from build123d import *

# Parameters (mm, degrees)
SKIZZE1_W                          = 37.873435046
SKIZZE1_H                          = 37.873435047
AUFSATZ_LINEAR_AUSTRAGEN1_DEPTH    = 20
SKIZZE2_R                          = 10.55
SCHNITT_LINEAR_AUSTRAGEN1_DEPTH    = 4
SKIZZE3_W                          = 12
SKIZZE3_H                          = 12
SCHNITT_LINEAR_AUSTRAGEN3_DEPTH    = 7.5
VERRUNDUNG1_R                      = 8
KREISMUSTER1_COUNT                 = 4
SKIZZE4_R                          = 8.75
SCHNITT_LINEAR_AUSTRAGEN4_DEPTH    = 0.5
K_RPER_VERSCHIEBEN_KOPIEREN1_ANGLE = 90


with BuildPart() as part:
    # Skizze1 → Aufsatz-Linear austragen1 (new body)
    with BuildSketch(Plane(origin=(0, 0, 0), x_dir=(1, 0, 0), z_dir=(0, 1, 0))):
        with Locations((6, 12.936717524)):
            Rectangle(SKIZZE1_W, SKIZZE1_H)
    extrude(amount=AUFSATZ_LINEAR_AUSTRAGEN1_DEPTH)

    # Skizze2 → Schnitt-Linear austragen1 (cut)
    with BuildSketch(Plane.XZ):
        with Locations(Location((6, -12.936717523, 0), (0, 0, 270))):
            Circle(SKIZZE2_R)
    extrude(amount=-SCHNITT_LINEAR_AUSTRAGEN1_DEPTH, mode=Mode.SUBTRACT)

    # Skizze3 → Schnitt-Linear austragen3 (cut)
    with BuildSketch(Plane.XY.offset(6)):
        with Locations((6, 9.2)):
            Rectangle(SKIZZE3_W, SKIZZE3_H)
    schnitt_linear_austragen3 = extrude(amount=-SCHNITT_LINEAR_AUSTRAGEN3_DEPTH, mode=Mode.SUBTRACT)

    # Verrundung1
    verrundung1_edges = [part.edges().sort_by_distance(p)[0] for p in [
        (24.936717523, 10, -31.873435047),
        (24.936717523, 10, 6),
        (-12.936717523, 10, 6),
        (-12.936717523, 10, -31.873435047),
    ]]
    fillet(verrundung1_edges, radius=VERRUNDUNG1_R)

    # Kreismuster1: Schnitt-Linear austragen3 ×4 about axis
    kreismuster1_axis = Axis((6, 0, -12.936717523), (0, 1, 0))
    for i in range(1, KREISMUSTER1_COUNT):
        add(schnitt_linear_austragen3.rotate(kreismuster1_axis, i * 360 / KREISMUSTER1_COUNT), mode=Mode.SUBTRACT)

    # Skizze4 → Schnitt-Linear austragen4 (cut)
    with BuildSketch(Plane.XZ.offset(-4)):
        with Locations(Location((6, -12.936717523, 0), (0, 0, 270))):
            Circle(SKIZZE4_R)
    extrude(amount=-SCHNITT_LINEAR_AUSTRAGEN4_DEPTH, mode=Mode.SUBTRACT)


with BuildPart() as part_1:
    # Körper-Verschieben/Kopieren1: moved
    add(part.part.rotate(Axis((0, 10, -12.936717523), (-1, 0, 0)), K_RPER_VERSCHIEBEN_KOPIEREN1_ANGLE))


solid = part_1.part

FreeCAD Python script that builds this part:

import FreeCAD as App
import Part
import Sketcher

V = App.Vector


def edges_at(feature, points):
    """Names of the edges that pass closest to the given points."""
    edges = feature.Shape.Edges
    near = lambda p: min(range(len(edges)), key=lambda i: edges[i].distToShape(Part.Vertex(*p))[0])
    return sorted({f"Edge{near(p) + 1}" for p in points})

doc = App.newDocument("Part")
body = doc.addObject("PartDesign::Body", "Body")

# Sketch on XZ plane
sketch1 = doc.addObject("Sketcher::SketchObject", "Sketch")
body.addObject(sketch1)
sketch1.AttachmentSupport = (doc.XZ_Plane, [""])
sketch1.MapMode = "FlatFace"
sketch1.addGeometry(Part.LineSegment(V(-13, -32, 0), V(-13, 6, 0)), False)
sketch1.addGeometry(Part.LineSegment(V(-13, 6, 0), V(25, 6, 0)), False)
sketch1.addGeometry(Part.LineSegment(V(25, 6, 0), V(25, -32, 0)), False)
sketch1.addGeometry(Part.LineSegment(V(25, -32, 0), V(-13, -32, 0)), False)
sketch1.addConstraint(Sketcher.Constraint("Coincident", 0, 2, 1, 1))
sketch1.addConstraint(Sketcher.Constraint("Coincident", 1, 2, 2, 1))
sketch1.addConstraint(Sketcher.Constraint("Coincident", 2, 2, 3, 1))
sketch1.addConstraint(Sketcher.Constraint("Coincident", 3, 2, 0, 1))
sketch1.addConstraint(Sketcher.Constraint("Vertical", 0))
sketch1.addConstraint(Sketcher.Constraint("Horizontal", 1))
sketch1.addConstraint(Sketcher.Constraint("Vertical", 2))
sketch1.addConstraint(Sketcher.Constraint("Horizontal", 3))
sketch1.addConstraint(Sketcher.Constraint("Equal", 3, 0))
sketch1.addConstraint(Sketcher.Constraint("DistanceY", -1, 1, 0, 2, 6.0))
sketch1.addConstraint(Sketcher.Constraint("DistanceX", 1, 1, 1, 2, 37.873435))
sketch1.addConstraint(Sketcher.Constraint("DistanceX", 0, 2, -1, 1, 12.936718))
pad1 = doc.addObject("PartDesign::Pad", "Pad")
body.addObject(pad1)
pad1.Profile = sketch1
pad1.Length = 20
pad1.Reversed = True

# Sketch on XZ plane
sketch2 = doc.addObject("Sketcher::SketchObject", "Sketch001")
body.addObject(sketch2)
sketch2.AttachmentSupport = (doc.XZ_Plane, [""])
sketch2.MapMode = "FlatFace"
sketch2.addGeometry(Part.Circle(V(6, -13, 0), V(0, 0, 1), 11), False)
sketch2.addConstraint(Sketcher.Constraint("Diameter", 0, 21.1))
sketch2.addConstraint(Sketcher.Constraint("DistanceX", -1, 1, 0, 3, 6.0))
sketch2.addConstraint(Sketcher.Constraint("DistanceY", 0, 3, -1, 1, 12.936718))
pocket1 = doc.addObject("PartDesign::Pocket", "Pocket")
body.addObject(pocket1)
pocket1.Profile = sketch2
pocket1.Length = 4

# Sketch on XY plane
sketch3 = doc.addObject("Sketcher::SketchObject", "Sketch002")
body.addObject(sketch3)
sketch3.AttachmentSupport = (doc.XY_Plane, [""])
sketch3.MapMode = "FlatFace"
sketch3.AttachmentOffset = App.Placement(V(0, 0, 6), App.Rotation())
sketch3.addGeometry(Part.LineSegment(V(0, 15, 0), V(0, 3, 0)), False)
sketch3.addGeometry(Part.LineSegment(V(0, 3, 0), V(12, 3, 0)), False)
sketch3.addGeometry(Part.LineSegment(V(12, 3, 0), V(12, 15, 0)), False)
sketch3.addGeometry(Part.LineSegment(V(12, 15, 0), V(0, 15, 0)), False)
sketch3.addConstraint(Sketcher.Constraint("Coincident", 0, 2, 1, 1))
sketch3.addConstraint(Sketcher.Constraint("Coincident", 1, 2, 2, 1))
sketch3.addConstraint(Sketcher.Constraint("Coincident", 2, 2, 3, 1))
sketch3.addConstraint(Sketcher.Constraint("Coincident", 3, 2, 0, 1))
sketch3.addConstraint(Sketcher.Constraint("Vertical", 0))
sketch3.addConstraint(Sketcher.Constraint("Horizontal", 1))
sketch3.addConstraint(Sketcher.Constraint("Vertical", 2))
sketch3.addConstraint(Sketcher.Constraint("Horizontal", 3))
sketch3.addConstraint(Sketcher.Constraint("PointOnObject", 0, 2, -2))
sketch3.addConstraint(Sketcher.Constraint("Equal", 3, 0))
sketch3.addConstraint(Sketcher.Constraint("DistanceX", 1, 1, 1, 2, 12.0))
sketch3.addConstraint(Sketcher.Constraint("DistanceY", -1, 1, 0, 2, 3.2))
pocket2 = doc.addObject("PartDesign::Pocket", "Pocket001")
body.addObject(pocket2)
pocket2.Profile = sketch3
pocket2.Length = 7.5
doc.recompute()

fillet = doc.addObject("PartDesign::Fillet", "Fillet")
body.addObject(fillet)
fillet.Base = (pocket2, edges_at(pocket2, [
    (24.937, 10, -31.873),
    (24.937, 10, 6),
    (-12.937, 10, 6),
    (-12.937, 10, -31.873),
]))
fillet.Radius = 8
doc.recompute()

datumline = doc.addObject("PartDesign::Line", "DatumLine")
body.addObject(datumline)
datumline.Placement = App.Placement(V(6, 0, -12.936718), App.Rotation(V(0, 0, 1), V(0, 1, 0)))
polarpattern = doc.addObject("PartDesign::PolarPattern", "PolarPattern")
body.addObject(polarpattern)
polarpattern.Originals = [pocket2]
polarpattern.Axis = (datumline, [""])
polarpattern.Angle = 360
polarpattern.Occurrences = 4
body.Tip = polarpattern

# Sketch on XZ plane
sketch4 = doc.addObject("Sketcher::SketchObject", "Sketch003")
body.addObject(sketch4)
sketch4.AttachmentSupport = (doc.XZ_Plane, [""])
sketch4.MapMode = "FlatFace"
sketch4.AttachmentOffset = App.Placement(V(0, 0, -4), App.Rotation())
sketch4.addGeometry(Part.Circle(V(6, -13, 0), V(0, 0, 1), 9), False)
sketch4.addConstraint(Sketcher.Constraint("Diameter", 0, 17.5))
sketch4.addConstraint(Sketcher.Constraint("DistanceX", -1, 1, 0, 3, 6.0))
sketch4.addConstraint(Sketcher.Constraint("DistanceY", 0, 3, -1, 1, 12.936718))
pocket3 = doc.addObject("PartDesign::Pocket", "Pocket002")
body.addObject(pocket3)
pocket3.Profile = sketch4
pocket3.Length = 0.5
body2 = doc.addObject("PartDesign::Body", "Body001")
doc.recompute()

body.Placement = App.Placement(V(0, 22.936718, -2.936718), App.Rotation(V(-1, 0, 0), 90))
boolean = doc.addObject("PartDesign::Boolean", "Boolean")
body2.addObject(boolean)
boolean.Type = "Fuse"
boolean.addObjects([body])

doc.recompute()
